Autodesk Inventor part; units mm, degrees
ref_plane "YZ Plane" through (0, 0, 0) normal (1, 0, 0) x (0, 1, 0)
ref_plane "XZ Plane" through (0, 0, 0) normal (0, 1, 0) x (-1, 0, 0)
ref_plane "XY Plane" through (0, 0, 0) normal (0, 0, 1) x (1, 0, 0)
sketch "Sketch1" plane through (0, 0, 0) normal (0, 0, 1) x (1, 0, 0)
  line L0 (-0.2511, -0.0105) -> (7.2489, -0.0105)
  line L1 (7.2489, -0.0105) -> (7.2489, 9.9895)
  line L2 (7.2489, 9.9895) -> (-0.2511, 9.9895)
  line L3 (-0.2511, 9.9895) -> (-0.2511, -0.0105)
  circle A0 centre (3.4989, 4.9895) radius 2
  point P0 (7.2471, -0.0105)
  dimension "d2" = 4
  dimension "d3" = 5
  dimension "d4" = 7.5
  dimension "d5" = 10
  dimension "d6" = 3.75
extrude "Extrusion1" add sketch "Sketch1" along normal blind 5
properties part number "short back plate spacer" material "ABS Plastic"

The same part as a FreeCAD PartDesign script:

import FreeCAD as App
import Part
import Sketcher

doc = App.newDocument("Part")
params = doc.addObject("Spreadsheet::Sheet", "Params")
for row, (alias, value) in enumerate([
    ("sketch1_diameter", "4 mm"),
    ("sketch1_height", "10 mm"),
    ("sketch1_width", "7.5 mm"),
    ("pad1_length", "5 mm"),
], start=1):
    params.set(f"A{row}", alias)
    params.set(f"B{row}", "=" + value)
    params.setAlias(f"B{row}", alias)

body = doc.addObject("PartDesign::Body", "Body")

sketch1 = body.newObject("Sketcher::SketchObject", "Sketch")
sketch1.AttachmentSupport = (doc.getObject("XY_Plane"), [""])
sketch1.MapMode = "FlatFace"
sketch1.addGeometry([
    Part.LineSegment(App.Vector(-0.3, 10, 0), App.Vector(-0.3, 0, 0)),
    Part.LineSegment(App.Vector(-0.3, 0, 0), App.Vector(7.2, 0, 0)),
    Part.LineSegment(App.Vector(7.2, 0, 0), App.Vector(7.2, 10, 0)),
    Part.LineSegment(App.Vector(7.2, 10, 0), App.Vector(-0.3, 10, 0)),
    Part.Circle(App.Vector(3.5, 5, 0), App.Vector(0, 0, 1), 2),
], False)
sketch1.addConstraint([
    Sketcher.Constraint("Coincident", 0, 2, 1, 1),
    Sketcher.Constraint("Coincident", 1, 2, 2, 1),
    Sketcher.Constraint("Coincident", 2, 2, 3, 1),
    Sketcher.Constraint("Coincident", 3, 2, 0, 1),
    Sketcher.Constraint("Vertical", 0),
    Sketcher.Constraint("Horizontal", 1),
    Sketcher.Constraint("Vertical", 2),
    Sketcher.Constraint("Horizontal", 3),
    Sketcher.Constraint("Diameter", 4, 4.0),
    Sketcher.Constraint("DistanceY", 0, 2, 0, 1, 10.0),
    Sketcher.Constraint("DistanceX", 1, 1, 1, 2, 7.5),
    Sketcher.Constraint("DistanceY", 0, 2, 4, 3, 5.0),
    Sketcher.Constraint("DistanceX", 0, 2, 4, 3, 3.75),
    Sketcher.Constraint("DistanceX", -1, 1, 4, 3, 3.499),
    Sketcher.Constraint("DistanceY", -1, 1, 4, 3, 4.9895),
])
sketch1.setExpression("Constraints[8]", "Params.sketch1_diameter")
sketch1.setExpression("Constraints[9]", "Params.sketch1_height")
sketch1.setExpression("Constraints[10]", "Params.sketch1_width")
pad1 = body.newObject("PartDesign::Pad", "Pad")
pad1.Profile = sketch1
pad1.setExpression("Length", "Params.pad1_length")

doc.recompute()
